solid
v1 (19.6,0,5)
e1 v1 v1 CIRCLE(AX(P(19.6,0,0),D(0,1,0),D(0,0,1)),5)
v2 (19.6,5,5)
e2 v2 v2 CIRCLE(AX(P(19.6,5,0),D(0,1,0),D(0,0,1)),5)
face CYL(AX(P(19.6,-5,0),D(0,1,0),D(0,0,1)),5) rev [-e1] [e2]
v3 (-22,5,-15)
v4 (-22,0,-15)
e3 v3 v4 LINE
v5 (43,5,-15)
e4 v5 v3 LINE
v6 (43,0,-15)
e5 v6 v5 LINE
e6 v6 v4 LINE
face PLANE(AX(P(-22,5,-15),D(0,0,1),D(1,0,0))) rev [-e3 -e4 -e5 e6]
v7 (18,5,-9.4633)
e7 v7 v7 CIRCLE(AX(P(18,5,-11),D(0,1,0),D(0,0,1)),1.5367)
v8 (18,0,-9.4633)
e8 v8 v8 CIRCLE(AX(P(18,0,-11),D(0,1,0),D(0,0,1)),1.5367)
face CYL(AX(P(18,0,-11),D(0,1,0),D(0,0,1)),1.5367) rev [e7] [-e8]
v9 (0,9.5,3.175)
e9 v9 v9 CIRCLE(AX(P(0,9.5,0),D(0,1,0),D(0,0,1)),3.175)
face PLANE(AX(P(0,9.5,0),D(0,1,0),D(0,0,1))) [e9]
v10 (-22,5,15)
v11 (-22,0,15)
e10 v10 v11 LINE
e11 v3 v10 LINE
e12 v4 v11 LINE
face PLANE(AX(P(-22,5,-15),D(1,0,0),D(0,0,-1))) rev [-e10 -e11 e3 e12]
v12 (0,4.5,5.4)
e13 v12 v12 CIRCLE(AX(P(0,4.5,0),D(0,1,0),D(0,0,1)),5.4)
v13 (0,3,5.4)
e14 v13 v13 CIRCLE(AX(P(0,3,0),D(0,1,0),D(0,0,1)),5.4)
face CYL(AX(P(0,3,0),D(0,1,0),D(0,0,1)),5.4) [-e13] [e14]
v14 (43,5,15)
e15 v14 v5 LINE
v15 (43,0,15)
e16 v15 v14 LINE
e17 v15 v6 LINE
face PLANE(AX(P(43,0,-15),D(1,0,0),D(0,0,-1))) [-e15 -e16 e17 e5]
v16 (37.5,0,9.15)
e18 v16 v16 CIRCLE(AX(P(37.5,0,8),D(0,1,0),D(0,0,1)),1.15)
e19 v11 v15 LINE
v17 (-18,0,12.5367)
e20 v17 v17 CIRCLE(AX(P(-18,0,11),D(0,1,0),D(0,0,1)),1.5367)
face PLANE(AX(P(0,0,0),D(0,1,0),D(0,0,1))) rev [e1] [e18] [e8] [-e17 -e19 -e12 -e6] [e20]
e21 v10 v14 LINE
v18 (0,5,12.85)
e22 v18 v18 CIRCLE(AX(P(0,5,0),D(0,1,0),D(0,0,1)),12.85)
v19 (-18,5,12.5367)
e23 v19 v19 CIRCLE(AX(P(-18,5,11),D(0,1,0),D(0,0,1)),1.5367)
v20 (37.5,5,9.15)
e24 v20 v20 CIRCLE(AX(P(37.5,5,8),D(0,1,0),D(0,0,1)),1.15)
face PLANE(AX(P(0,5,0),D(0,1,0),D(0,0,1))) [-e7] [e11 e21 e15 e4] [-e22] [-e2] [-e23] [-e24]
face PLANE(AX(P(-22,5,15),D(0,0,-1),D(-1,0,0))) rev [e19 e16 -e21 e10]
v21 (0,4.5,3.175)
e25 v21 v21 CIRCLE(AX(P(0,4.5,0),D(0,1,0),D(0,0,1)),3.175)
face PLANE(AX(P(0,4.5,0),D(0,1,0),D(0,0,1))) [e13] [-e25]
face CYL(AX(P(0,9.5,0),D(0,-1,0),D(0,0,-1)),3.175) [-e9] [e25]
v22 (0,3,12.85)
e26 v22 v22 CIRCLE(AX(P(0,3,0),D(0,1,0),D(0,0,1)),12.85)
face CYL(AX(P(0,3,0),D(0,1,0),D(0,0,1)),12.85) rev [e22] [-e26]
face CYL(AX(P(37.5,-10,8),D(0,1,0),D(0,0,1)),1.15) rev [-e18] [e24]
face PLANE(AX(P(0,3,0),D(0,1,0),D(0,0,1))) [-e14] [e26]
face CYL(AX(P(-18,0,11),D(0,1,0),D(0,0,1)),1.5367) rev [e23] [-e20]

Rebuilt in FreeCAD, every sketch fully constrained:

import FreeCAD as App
import Part
import Sketcher
Q = App.Units.Quantity


def add_polygon(sketch, points):
    """Adds a closed chain of lines whose ends are joined by coincident constraints."""
    first, n = sketch.GeometryCount, len(points)
    for a, b in zip(points, points[1:] + points[:1]):
        sketch.addGeometry(Part.LineSegment(App.Vector(*a, 0), App.Vector(*b, 0)), False)
    for i in range(n):
        sketch.addConstraint(Sketcher.Constraint("Coincident", first + i, 2, first + (i + 1) % n, 1))

doc = App.newDocument("Part")
body = doc.addObject("PartDesign::Body", "Body")

# Sketch on XZ plane
sketch1 = body.newObject("Sketcher::SketchObject", "Sketch")
sketch1.AttachmentSupport = (doc.getObject("XZ_Plane"), [""])
sketch1.MapMode = "FlatFace"
add_polygon(sketch1, [(-22, -15), (-22, 15), (35, 15), (35, -15)])  # lines 0-3
sketch1.addConstraint([
    Sketcher.Constraint("Vertical", 0),
    Sketcher.Constraint("Horizontal", 1),
    Sketcher.Constraint("Vertical", 2),
    Sketcher.Constraint("Horizontal", 3),
    Sketcher.Constraint("DistanceX", 1, 1, 1, 2, Q("57 mm")),
    Sketcher.Constraint("DistanceY", 0, 1, 0, 2, Q("30 mm")),
    Sketcher.Constraint("DistanceX", 0, 2, -1, 1, Q("22 mm")),
    Sketcher.Constraint("DistanceY", -1, 1, 0, 2, Q("15 mm")),
])
pad1 = body.newObject("PartDesign::Pad", "Pad")
pad1.Profile = sketch1
pad1.Length = 5
pad1.Reversed = True

# Sketch on XZ plane
sketch2 = body.newObject("Sketcher::SketchObject", "Sketch001")
sketch2.AttachmentSupport = (doc.getObject("XZ_Plane"), [""])
sketch2.MapMode = "FlatFace"
sketch2.AttachmentOffset = App.Placement(App.Vector(0, 0, -5), App.Rotation())
sketch2.addGeometry(Part.Circle(App.Vector(0, 0, 0), App.Vector(0, 0, 1), 3.2), False)
sketch2.addConstraint([
    Sketcher.Constraint("Coincident", 0, 3, -1, 1),
    Sketcher.Constraint("Diameter", 0, Q("6.35 mm")),
])
pad2 = body.newObject("PartDesign::Pad", "Pad001")
pad2.Profile = sketch2
pad2.Length = 4.5
pad2.Reversed = True

# Sketch on XZ plane
sketch3 = body.newObject("Sketcher::SketchObject", "Sketch002")
sketch3.AttachmentSupport = (doc.getObject("XZ_Plane"), [""])
sketch3.MapMode = "FlatFace"
sketch3.AttachmentOffset = App.Placement(App.Vector(0, 0, -5), App.Rotation())
sketch3.addGeometry([
    Part.Circle(App.Vector(-18, 11, 0), App.Vector(0, 0, 1), 1.5),
    Part.Circle(App.Vector(18, -11, 0), App.Vector(0, 0, 1), 1.5),
], False)
sketch3.addConstraint([
    Sketcher.Constraint("Equal", 0, 1),
    Sketcher.Constraint("Symmetric", 0, 3, 1, 3, -1, 1),
    Sketcher.Constraint("DistanceX", 0, 3, -1, 1, Q("18 mm")),
    Sketcher.Constraint("DistanceY", -1, 1, 0, 3, Q("11 mm")),
    Sketcher.Constraint("Diameter", 0, Q("3.0734 mm")),
])
pocket1 = body.newObject("PartDesign::Pocket", "Pocket")
pocket1.Profile = sketch3
pocket1.Length = 5
pocket1.Reversed = True

# Sketch on XZ plane
sketch4 = body.newObject("Sketcher::SketchObject", "Sketch003")
sketch4.AttachmentSupport = (doc.getObject("XZ_Plane"), [""])
sketch4.MapMode = "FlatFace"
sketch4.AttachmentOffset = App.Placement(App.Vector(0, 0, -5), App.Rotation())
sketch4.addGeometry([
    Part.Circle(App.Vector(0, 0, 0), App.Vector(0, 0, 1), 13),
    Part.Circle(App.Vector(0, 0, 0), App.Vector(0, 0, 1), 5),
], False)
sketch4.addConstraint([
    Sketcher.Constraint("Coincident", 0, 3, -1, 1),
    Sketcher.Constraint("Coincident", 1, 3, -1, 1),
    Sketcher.Constraint("Diameter", 0, Q("25.7 mm")),
    Sketcher.Constraint("Diameter", 1, Q("10.8 mm")),
])
pocket2 = body.newObject("PartDesign::Pocket", "Pocket001")
pocket2.Profile = sketch4
pocket2.Length = 2
pocket2.Reversed = True

# Sketch on XZ plane
sketch5 = body.newObject("Sketcher::SketchObject", "Sketch004")
sketch5.AttachmentSupport = (doc.getObject("XZ_Plane"), [""])
sketch5.MapMode = "FlatFace"
sketch5.AttachmentOffset = App.Placement(App.Vector(0, 0, -5), App.Rotation())
sketch5.addGeometry(Part.Circle(App.Vector(20, 0, 0), App.Vector(0, 0, 1), 5), False)
sketch5.addConstraint([
    Sketcher.Constraint("PointOnObject", 0, 3, -1),
    Sketcher.Constraint("Diameter", 0, Q("10 mm")),
    Sketcher.Constraint("DistanceX", -1, 1, 0, 3, Q("19.6 mm")),
])
pocket3 = body.newObject("PartDesign::Pocket", "Pocket002")
pocket3.Profile = sketch5
pocket3.Length = 10
pocket3.Reversed = True

# Sketch on XZ plane
sketch6 = body.newObject("Sketcher::SketchObject", "Sketch005")
sketch6.AttachmentSupport = (doc.getObject("XZ_Plane"), [""])
sketch6.MapMode = "FlatFace"
sketch6.AttachmentOffset = App.Placement(App.Vector(0, 0, -5), App.Rotation())
add_polygon(sketch6, [(35, -15), (35, 15), (43, 15), (43, -15)])  # lines 0-3
sketch6.addConstraint([
    Sketcher.Constraint("Vertical", 0),
    Sketcher.Constraint("Horizontal", 1),
    Sketcher.Constraint("Vertical", 2),
    Sketcher.Constraint("Horizontal", 3),
    Sketcher.Constraint("DistanceX", 1, 1, 1, 2, Q("8 mm")),
    Sketcher.Constraint("DistanceY", 0, 1, 0, 2, Q("30 mm")),
    Sketcher.Constraint("DistanceX", -1, 1, 0, 2, Q("35 mm")),
    Sketcher.Constraint("DistanceY", -1, 1, 0, 2, Q("15 mm")),
])
pad3 = body.newObject("PartDesign::Pad", "Pad002")
pad3.Profile = sketch6
pad3.Length = 5

# Sketch on XZ plane
sketch7 = body.newObject("Sketcher::SketchObject", "Sketch006")
sketch7.AttachmentSupport = (doc.getObject("XZ_Plane"), [""])
sketch7.MapMode = "FlatFace"
sketch7.AttachmentOffset = App.Placement(App.Vector(0, 0, -5), App.Rotation())
sketch7.addGeometry([
    Part.Circle(App.Vector(0, 0, 0), App.Vector(0, 0, 1), 5.4),
    Part.Circle(App.Vector(0, 0, 0), App.Vector(0, 0, 1), 3.2),
], False)
sketch7.addConstraint([
    Sketcher.Constraint("Coincident", 0, 3, -1, 1),
    Sketcher.Constraint("Coincident", 1, 3, -1, 1),
    Sketcher.Constraint("Diameter", 0, Q("10.8 mm")),
    Sketcher.Constraint("Diameter", 1, Q("6.35 mm")),
])
pocket4 = body.newObject("PartDesign::Pocket", "Pocket003")
pocket4.Profile = sketch7
pocket4.Length = 0.5
pocket4.Reversed = True

# Sketch on XZ plane
sketch8 = body.newObject("Sketcher::SketchObject", "Sketch007")
sketch8.AttachmentSupport = (doc.getObject("XZ_Plane"), [""])
sketch8.MapMode = "FlatFace"
sketch8.AttachmentOffset = App.Placement(App.Vector(0, 0, -5), App.Rotation())
sketch8.addGeometry(Part.Circle(App.Vector(37.5, 8, 0), App.Vector(0, 0, 1), 1.1), False)
sketch8.addConstraint([
    Sketcher.Constraint("Diameter", 0, Q("2.3 mm")),
    Sketcher.Constraint("DistanceY", -1, 1, 0, 3, Q("8 mm")),
    Sketcher.Constraint("DistanceX", -1, 1, 0, 3, Q("37.5 mm")),
])
pocket5 = body.newObject("PartDesign::Pocket", "Pocket004")
pocket5.Profile = sketch8
pocket5.Length = 15
pocket5.Reversed = True

doc.recompute()
